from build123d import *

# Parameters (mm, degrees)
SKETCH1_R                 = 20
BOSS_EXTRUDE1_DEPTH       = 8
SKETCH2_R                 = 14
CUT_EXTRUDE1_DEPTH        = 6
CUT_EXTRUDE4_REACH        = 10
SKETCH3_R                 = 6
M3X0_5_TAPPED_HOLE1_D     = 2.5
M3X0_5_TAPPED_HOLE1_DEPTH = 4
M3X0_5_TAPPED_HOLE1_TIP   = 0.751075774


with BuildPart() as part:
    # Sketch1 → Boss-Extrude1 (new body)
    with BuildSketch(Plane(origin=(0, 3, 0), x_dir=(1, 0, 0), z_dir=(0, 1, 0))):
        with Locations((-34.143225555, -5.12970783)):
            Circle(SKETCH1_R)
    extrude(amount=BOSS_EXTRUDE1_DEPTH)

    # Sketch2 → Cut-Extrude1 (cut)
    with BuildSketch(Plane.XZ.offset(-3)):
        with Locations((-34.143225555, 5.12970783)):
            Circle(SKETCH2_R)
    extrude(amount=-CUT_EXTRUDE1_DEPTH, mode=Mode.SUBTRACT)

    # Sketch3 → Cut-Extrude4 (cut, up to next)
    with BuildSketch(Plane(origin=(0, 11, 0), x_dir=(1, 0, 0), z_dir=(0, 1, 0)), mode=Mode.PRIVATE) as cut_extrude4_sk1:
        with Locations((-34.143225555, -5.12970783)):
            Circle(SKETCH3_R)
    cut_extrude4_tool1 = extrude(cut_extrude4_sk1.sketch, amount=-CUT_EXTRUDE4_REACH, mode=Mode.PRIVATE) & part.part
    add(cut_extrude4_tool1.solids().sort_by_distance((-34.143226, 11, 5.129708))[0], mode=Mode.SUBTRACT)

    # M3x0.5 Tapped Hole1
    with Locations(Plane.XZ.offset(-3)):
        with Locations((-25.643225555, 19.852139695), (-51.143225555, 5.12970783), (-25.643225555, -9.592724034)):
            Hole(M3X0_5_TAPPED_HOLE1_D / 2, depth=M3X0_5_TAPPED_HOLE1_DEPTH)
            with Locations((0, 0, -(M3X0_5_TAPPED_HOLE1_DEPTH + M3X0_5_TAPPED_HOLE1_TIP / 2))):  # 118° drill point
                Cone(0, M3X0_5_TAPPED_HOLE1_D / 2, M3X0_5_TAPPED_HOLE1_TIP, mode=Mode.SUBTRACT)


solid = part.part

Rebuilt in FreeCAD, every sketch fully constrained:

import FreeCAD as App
import Part
import Sketcher
from FreeCAD import Vector
Q = App.Units.Quantity

doc = App.newDocument("Part")
body = doc.addObject("PartDesign::Body", "Body")

# Sketch on XZ plane
sketch1 = body.newObject("Sketcher::SketchObject", "Sketch")
sketch1.AttachmentSupport = (doc.getObject("XZ_Plane"), [""])
sketch1.MapMode = "FlatFace"
sketch1.AttachmentOffset = App.Placement(Vector(0, 0, -3), App.Rotation())
sketch1.addGeometry(Part.Circle(Vector(-34, 5, 0), Vector(0, 0, 1), 20), False)
sketch1.addConstraint([
    Sketcher.Constraint("Diameter", 0, Q("40 mm")),
    Sketcher.Constraint("DistanceX", 0, 3, -1, 1, Q("34.143226 mm")),
    Sketcher.Constraint("DistanceY", -1, 1, 0, 3, Q("5.129708 mm")),
])
pad1 = body.newObject("PartDesign::Pad", "Pad")
pad1.Profile = sketch1
pad1.Length = 8
pad1.Reversed = True

# Sketch on XZ plane
sketch2 = body.newObject("Sketcher::SketchObject", "Sketch001")
sketch2.AttachmentSupport = (doc.getObject("XZ_Plane"), [""])
sketch2.MapMode = "FlatFace"
sketch2.AttachmentOffset = App.Placement(Vector(0, 0, -3), App.Rotation())
sketch2.addGeometry(Part.Circle(Vector(-34, 5, 0), Vector(0, 0, 1), 14), False)
sketch2.addConstraint([
    Sketcher.Constraint("Diameter", 0, Q("28 mm")),
    Sketcher.Constraint("DistanceX", 0, 3, -1, 1, Q("34.143226 mm")),
    Sketcher.Constraint("DistanceY", -1, 1, 0, 3, Q("5.129708 mm")),
])
pocket1 = body.newObject("PartDesign::Pocket", "Pocket")
pocket1.Profile = sketch2
pocket1.Length = 6

# Sketch on XZ plane
sketch3 = body.newObject("Sketcher::SketchObject", "Sketch002")
sketch3.AttachmentSupport = (doc.getObject("XZ_Plane"), [""])
sketch3.MapMode = "FlatFace"
sketch3.AttachmentOffset = App.Placement(Vector(0, 0, -11), App.Rotation())
sketch3.addGeometry(Part.Circle(Vector(-34, 5, 0), Vector(0, 0, 1), 6), False)
sketch3.addConstraint([
    Sketcher.Constraint("Diameter", 0, Q("12 mm")),
    Sketcher.Constraint("DistanceX", 0, 3, -1, 1, Q("34.143226 mm")),
    Sketcher.Constraint("DistanceY", -1, 1, 0, 3, Q("5.129708 mm")),
])
pocket2 = body.newObject("PartDesign::Pocket", "Pocket001")
pocket2.Profile = sketch3
pocket2.Type = "UpToFirst"
pocket2.Reversed = True

# Sketch on XZ plane
sketch4 = body.newObject("Sketcher::SketchObject", "Sketch003")
sketch4.AttachmentSupport = (doc.getObject("XZ_Plane"), [""])
sketch4.MapMode = "FlatFace"
sketch4.AttachmentOffset = App.Placement(Vector(0, 0, -3), App.Rotation())
sketch4.addGeometry([
    Part.Circle(Vector(-25.6, 19.9, 0), Vector(0, 0, 1), 1.2),
    Part.Circle(Vector(-51.1, 5.1, 0), Vector(0, 0, 1), 1.2),
    Part.Circle(Vector(-25.6, -9.6, 0), Vector(0, 0, 1), 1.2),
], False)
sketch4.addConstraint([
    Sketcher.Constraint("Equal", 0, 1),
    Sketcher.Constraint("Equal", 1, 2),
    Sketcher.Constraint("Vertical", 0, 3, 2, 3),
    Sketcher.Constraint("Diameter", 0, Q("2.5 mm")),
    Sketcher.Constraint("DistanceX", 1, 3, 0, 3, Q("25.5 mm")),
    Sketcher.Constraint("DistanceY", -1, 1, 0, 3, Q("19.85214 mm")),
    Sketcher.Constraint("DistanceY", 1, 3, 0, 3, Q("14.722432 mm")),
    Sketcher.Constraint("DistanceY", 2, 3, 1, 3, Q("14.722432 mm")),
    Sketcher.Constraint("DistanceX", 0, 3, -1, 1, Q("25.643226 mm")),
])
doc.recompute()
hole = body.newObject("PartDesign::Hole", "Hole")
hole.Profile = sketch4
hole.ThreadType = "None"
hole.Diameter = 2.5
hole.DepthType = "Dimension"
hole.Depth = 4
hole.DrillPoint = "Angled"
hole.DrillPointAngle = 118

doc.recompute()
